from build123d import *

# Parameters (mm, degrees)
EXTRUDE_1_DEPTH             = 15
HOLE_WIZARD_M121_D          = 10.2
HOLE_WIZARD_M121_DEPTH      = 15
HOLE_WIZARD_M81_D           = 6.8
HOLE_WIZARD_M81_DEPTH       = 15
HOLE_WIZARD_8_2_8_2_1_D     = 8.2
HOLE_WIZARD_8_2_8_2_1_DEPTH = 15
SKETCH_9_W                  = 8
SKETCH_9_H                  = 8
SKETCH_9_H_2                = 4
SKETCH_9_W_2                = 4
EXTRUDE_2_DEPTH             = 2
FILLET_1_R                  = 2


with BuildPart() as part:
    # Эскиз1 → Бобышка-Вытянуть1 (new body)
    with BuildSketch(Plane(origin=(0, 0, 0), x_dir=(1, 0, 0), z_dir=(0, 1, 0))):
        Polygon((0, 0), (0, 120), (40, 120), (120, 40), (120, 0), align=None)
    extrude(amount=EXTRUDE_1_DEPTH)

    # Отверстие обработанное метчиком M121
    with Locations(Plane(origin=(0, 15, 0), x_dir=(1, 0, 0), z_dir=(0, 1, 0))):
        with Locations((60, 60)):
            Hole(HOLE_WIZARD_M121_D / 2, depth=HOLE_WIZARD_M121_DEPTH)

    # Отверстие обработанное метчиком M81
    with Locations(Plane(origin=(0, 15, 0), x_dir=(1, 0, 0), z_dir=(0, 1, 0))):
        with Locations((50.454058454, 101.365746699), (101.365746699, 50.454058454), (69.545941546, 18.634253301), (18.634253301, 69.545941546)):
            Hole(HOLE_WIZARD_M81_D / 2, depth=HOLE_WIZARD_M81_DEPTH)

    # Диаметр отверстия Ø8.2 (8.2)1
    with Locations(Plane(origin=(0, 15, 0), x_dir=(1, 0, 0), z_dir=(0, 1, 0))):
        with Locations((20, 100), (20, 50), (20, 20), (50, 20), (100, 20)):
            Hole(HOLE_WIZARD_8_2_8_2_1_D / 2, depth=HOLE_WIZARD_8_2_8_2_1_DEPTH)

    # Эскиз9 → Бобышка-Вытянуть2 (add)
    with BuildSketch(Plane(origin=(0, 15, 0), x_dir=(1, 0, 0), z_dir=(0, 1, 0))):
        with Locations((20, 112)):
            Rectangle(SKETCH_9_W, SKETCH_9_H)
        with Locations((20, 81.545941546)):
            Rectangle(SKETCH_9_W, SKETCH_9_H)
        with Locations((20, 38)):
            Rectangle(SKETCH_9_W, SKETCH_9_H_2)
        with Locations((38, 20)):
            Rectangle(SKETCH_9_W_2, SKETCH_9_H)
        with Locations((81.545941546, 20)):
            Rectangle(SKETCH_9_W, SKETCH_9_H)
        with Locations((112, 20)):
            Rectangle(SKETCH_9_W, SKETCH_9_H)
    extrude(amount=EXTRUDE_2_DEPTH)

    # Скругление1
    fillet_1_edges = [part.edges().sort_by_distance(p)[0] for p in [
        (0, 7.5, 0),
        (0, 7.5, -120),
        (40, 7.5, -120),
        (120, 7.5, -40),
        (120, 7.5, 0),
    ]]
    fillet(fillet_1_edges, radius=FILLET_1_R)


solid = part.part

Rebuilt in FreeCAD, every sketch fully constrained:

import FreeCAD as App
import Part
import Sketcher
from FreeCAD import Vector


def edges_at(feature, points):
    """Names of the edges that pass closest to the given points."""
    edges = feature.Shape.Edges
    near = lambda p: min(range(len(edges)), key=lambda i: edges[i].distToShape(Part.Vertex(*p))[0])
    return sorted({f"Edge{near(p) + 1}" for p in points})

doc = App.newDocument("Part")
body = doc.addObject("PartDesign::Body", "Body")

sketch1 = doc.addObject("Sketcher::SketchObject", "Sketch")
body.addObject(sketch1)
sketch1.AttachmentSupport = (doc.XZ_Plane, [""])
sketch1.MapMode = "FlatFace"
sketch1.addGeometry(Part.LineSegment(Vector(0, -120, 0), Vector(0, 0, 0)), False)
sketch1.addGeometry(Part.LineSegment(Vector(0, 0, 0), Vector(120, 0, 0)), False)
sketch1.addGeometry(Part.LineSegment(Vector(120, 0, 0), Vector(120, -40, 0)), False)
sketch1.addGeometry(Part.LineSegment(Vector(120, -40, 0), Vector(40, -120, 0)), False)
sketch1.addGeometry(Part.LineSegment(Vector(40, -120, 0), Vector(0, -120, 0)), False)
sketch1.addConstraint(Sketcher.Constraint("Coincident", 0, 2, 1, 1))
sketch1.addConstraint(Sketcher.Constraint("Coincident", 1, 2, 2, 1))
sketch1.addConstraint(Sketcher.Constraint("Coincident", 2, 2, 3, 1))
sketch1.addConstraint(Sketcher.Constraint("Coincident", 3, 2, 4, 1))
sketch1.addConstraint(Sketcher.Constraint("Coincident", 4, 2, 0, 1))
sketch1.addConstraint(Sketcher.Constraint("Vertical", 0))
sketch1.addConstraint(Sketcher.Constraint("Horizontal", 1))
sketch1.addConstraint(Sketcher.Constraint("Vertical", 2))
sketch1.addConstraint(Sketcher.Constraint("Horizontal", 4))
sketch1.addConstraint(Sketcher.Constraint("Coincident", 0, 2, -1, 1))
sketch1.addConstraint(Sketcher.Constraint("Equal", 1, 0))
sketch1.addConstraint(Sketcher.Constraint("Equal", 4, 2))
sketch1.addConstraint(Sketcher.Constraint("DistanceX", 1, 1, 1, 2, 120.0))
sketch1.addConstraint(Sketcher.Constraint("DistanceX", 4, 2, 4, 1, 40.0))
pad1 = doc.addObject("PartDesign::Pad", "Pad")
body.addObject(pad1)
pad1.Profile = sketch1
pad1.Length = 15
pad1.Reversed = True

sketch2 = doc.addObject("Sketcher::SketchObject", "Sketch001")
body.addObject(sketch2)
sketch2.AttachmentSupport = (doc.XZ_Plane, [""])
sketch2.MapMode = "FlatFace"
sketch2.AttachmentOffset = App.Placement(Vector(0, 0, -15), App.Rotation())
sketch2.addGeometry(Part.Circle(Vector(60, -60, 0), Vector(0, 0, 1), 5), False)
sketch2.addConstraint(Sketcher.Constraint("Diameter", 0, 10.2))
sketch2.addConstraint(Sketcher.Constraint("DistanceX", -1, 1, 0, 3, 60.0))
sketch2.addConstraint(Sketcher.Constraint("DistanceY", 0, 3, -1, 1, 60.0))
doc.recompute()
hole = doc.addObject("PartDesign::Hole", "Hole")
body.addObject(hole)
hole.Profile = sketch2
hole.ThreadType = "None"
hole.Diameter = 10.2
hole.DepthType = "Dimension"
hole.Depth = 15
hole.DrillPoint = "Flat"
hole.Reversed = True

sketch3 = doc.addObject("Sketcher::SketchObject", "Sketch002")
body.addObject(sketch3)
sketch3.AttachmentSupport = (doc.XZ_Plane, [""])
sketch3.MapMode = "FlatFace"
sketch3.AttachmentOffset = App.Placement(Vector(0, 0, -15), App.Rotation())
sketch3.addGeometry(Part.Circle(Vector(50.5, -101.4, 0), Vector(0, 0, 1), 3.4), False)
sketch3.addGeometry(Part.Circle(Vector(101.4, -50.5, 0), Vector(0, 0, 1), 3.4), False)
sketch3.addGeometry(Part.Circle(Vector(69.5, -18.6, 0), Vector(0, 0, 1), 3.4), False)
sketch3.addGeometry(Part.Circle(Vector(18.6, -69.5, 0), Vector(0, 0, 1), 3.4), False)
sketch3.addConstraint(Sketcher.Constraint("Equal", 0, 1))
sketch3.addConstraint(Sketcher.Constraint("Equal", 1, 2))
sketch3.addConstraint(Sketcher.Constraint("Equal", 2, 3))
sketch3.addConstraint(Sketcher.Constraint("Diameter", 0, 6.8))
sketch3.addConstraint(Sketcher.Constraint("DistanceX", -1, 1, 0, 3, 50.454058))
sketch3.addConstraint(Sketcher.Constraint("DistanceY", 1, 3, -1, 1, 50.454058))
sketch3.addConstraint(Sketcher.Constraint("DistanceX", -1, 1, 2, 3, 69.545942))
sketch3.addConstraint(Sketcher.Constraint("DistanceY", 3, 3, -1, 1, 69.545942))
sketch3.addConstraint(Sketcher.Constraint("DistanceX", 0, 3, 1, 3, 50.911688))
sketch3.addConstraint(Sketcher.Constraint("DistanceY", 0, 3, 1, 3, 50.911688))
sketch3.addConstraint(Sketcher.Constraint("DistanceX", 3, 3, 2, 3, 50.911688))
sketch3.addConstraint(Sketcher.Constraint("DistanceY", 3, 3, 2, 3, 50.911688))
doc.recompute()
hole2 = doc.addObject("PartDesign::Hole", "Hole001")
body.addObject(hole2)
hole2.Profile = sketch3
hole2.ThreadType = "None"
hole2.Diameter = 6.8
hole2.DepthType = "Dimension"
hole2.Depth = 15
hole2.DrillPoint = "Flat"
hole2.Reversed = True

sketch4 = doc.addObject("Sketcher::SketchObject", "Sketch003")
body.addObject(sketch4)
sketch4.AttachmentSupport = (doc.XZ_Plane, [""])
sketch4.MapMode = "FlatFace"
sketch4.AttachmentOffset = App.Placement(Vector(0, 0, -15), App.Rotation())
sketch4.addGeometry(Part.Circle(Vector(20, -100, 0), Vector(0, 0, 1), 4.1), False)
sketch4.addGeometry(Part.Circle(Vector(20, -50, 0), Vector(0, 0, 1), 4.1), False)
sketch4.addGeometry(Part.Circle(Vector(20, -20, 0), Vector(0, 0, 1), 4.1), False)
sketch4.addGeometry(Part.Circle(Vector(50, -20, 0), Vector(0, 0, 1), 4.1), False)
sketch4.addGeometry(Part.Circle(Vector(100, -20, 0), Vector(0, 0, 1), 4.1), False)
sketch4.addConstraint(Sketcher.Constraint("Equal", 0, 1))
sketch4.addConstraint(Sketcher.Constraint("Equal", 1, 2))
sketch4.addConstraint(Sketcher.Constraint("Equal", 2, 3))
sketch4.addConstraint(Sketcher.Constraint("Equal", 3, 4))
sketch4.addConstraint(Sketcher.Constraint("Horizontal", 2, 3, 3, 3))
sketch4.addConstraint(Sketcher.Constraint("Horizontal", 3, 3, 4, 3))
sketch4.addConstraint(Sketcher.Constraint("Vertical", 0, 3, 1, 3))
sketch4.addConstraint(Sketcher.Constraint("Vertical", 1, 3, 2, 3))
sketch4.addConstraint(Sketcher.Constraint("Diameter", 0, 8.2))
sketch4.addConstraint(Sketcher.Constraint("DistanceX", -1, 1, 0, 3, 20.0))
sketch4.addConstraint(Sketcher.Constraint("DistanceY", 0, 3, -1, 1, 100.0))
sketch4.addConstraint(Sketcher.Constraint("DistanceY", 1, 3, -1, 1, 50.0))
sketch4.addConstraint(Sketcher.Constraint("DistanceY", 2, 3, -1, 1, 20.0))
sketch4.addConstraint(Sketcher.Constraint("DistanceX", -1, 1, 3, 3, 50.0))
sketch4.addConstraint(Sketcher.Constraint("DistanceX", -1, 1, 4, 3, 100.0))
doc.recompute()
hole3 = doc.addObject("PartDesign::Hole", "Hole002")
body.addObject(hole3)
hole3.Profile = sketch4
hole3.ThreadType = "None"
hole3.Diameter = 8.2
hole3.DepthType = "Dimension"
hole3.Depth = 15
hole3.DrillPoint = "Flat"
hole3.Reversed = True

sketch5 = doc.addObject("Sketcher::SketchObject", "Sketch004")
body.addObject(sketch5)
sketch5.AttachmentSupport = (doc.XZ_Plane, [""])
sketch5.MapMode = "FlatFace"
sketch5.AttachmentOffset = App.Placement(Vector(0, 0, -15), App.Rotation())
sketch5.addGeometry(Part.LineSegment(Vector(16, -116, 0), Vector(16, -108, 0)), False)
sketch5.addGeometry(Part.LineSegment(Vector(16, -108, 0), Vector(24, -108, 0)), False)
sketch5.addGeometry(Part.LineSegment(Vector(24, -108, 0), Vector(24, -116, 0)), False)
sketch5.addGeometry(Part.LineSegment(Vector(24, -116, 0), Vector(16, -116, 0)), False)
sketch5.addGeometry(Part.LineSegment(Vector(16, -85.5, 0), Vector(16, -77.5, 0)), False)
sketch5.addGeometry(Part.LineSegment(Vector(16, -77.5, 0), Vector(24, -77.5, 0)), False)
sketch5.addGeometry(Part.LineSegment(Vector(24, -77.5, 0), Vector(24, -85.5, 0)), False)
sketch5.addGeometry(Part.LineSegment(Vector(24, -85.5, 0), Vector(16, -85.5, 0)), False)
sketch5.addGeometry(Part.LineSegment(Vector(16, -40, 0), Vector(16, -36, 0)), False)
sketch5.addGeometry(Part.LineSegment(Vector(16, -36, 0), Vector(24, -36, 0)), False)
sketch5.addGeometry(Part.LineSegment(Vector(24, -36, 0), Vector(24, -40, 0)), False)
sketch5.addGeometry(Part.LineSegment(Vector(24, -40, 0), Vector(16, -40, 0)), False)
sketch5.addGeometry(Part.LineSegment(Vector(36, -24, 0), Vector(36, -16, 0)), False)
sketch5.addGeometry(Part.LineSegment(Vector(36, -16, 0), Vector(40, -16, 0)), False)
sketch5.addGeometry(Part.LineSegment(Vector(40, -16, 0), Vector(40, -24, 0)), False)
sketch5.addGeometry(Part.LineSegment(Vector(40, -24, 0), Vector(36, -24, 0)), False)
sketch5.addGeometry(Part.LineSegment(Vector(77.5, -24, 0), Vector(77.5, -16, 0)), False)
sketch5.addGeometry(Part.LineSegment(Vector(77.5, -16, 0), Vector(85.5, -16, 0)), False)
sketch5.addGeometry(Part.LineSegment(Vector(85.5, -16, 0), Vector(85.5, -24, 0)), False)
sketch5.addGeometry(Part.LineSegment(Vector(85.5, -24, 0), Vector(77.5, -24, 0)), False)
sketch5.addGeometry(Part.LineSegment(Vector(108, -24, 0), Vector(108, -16, 0)), False)
sketch5.addGeometry(Part.LineSegment(Vector(108, -16, 0), Vector(116, -16, 0)), False)
sketch5.addGeometry(Part.LineSegment(Vector(116, -16, 0), Vector(116, -24, 0)), False)
sketch5.addGeometry(Part.LineSegment(Vector(116, -24, 0), Vector(108, -24, 0)), False)
sketch5.addConstraint(Sketcher.Constraint("Coincident", 0, 2, 1, 1))
sketch5.addConstraint(Sketcher.Constraint("Coincident", 1, 2, 2, 1))
sketch5.addConstraint(Sketcher.Constraint("Coincident", 2, 2, 3, 1))
sketch5.addConstraint(Sketcher.Constraint("Coincident", 3, 2, 0, 1))
sketch5.addConstraint(Sketcher.Constraint("Coincident", 4, 2, 5, 1))
sketch5.addConstraint(Sketcher.Constraint("Coincident", 5, 2, 6, 1))
sketch5.addConstraint(Sketcher.Constraint("Coincident", 6, 2, 7, 1))
sketch5.addConstraint(Sketcher.Constraint("Coincident", 7, 2, 4, 1))
sketch5.addConstraint(Sketcher.Constraint("Coincident", 8, 2, 9, 1))
sketch5.addConstraint(Sketcher.Constraint("Coincident", 9, 2, 10, 1))
sketch5.addConstraint(Sketcher.Constraint("Coincident", 10, 2, 11, 1))
sketch5.addConstraint(Sketcher.Constraint("Coincident", 11, 2, 8, 1))
sketch5.addConstraint(Sketcher.Constraint("Coincident", 12, 2, 13, 1))
sketch5.addConstraint(Sketcher.Constraint("Coincident", 13, 2, 14, 1))
sketch5.addConstraint(Sketcher.Constraint("Coincident", 14, 2, 15, 1))
sketch5.addConstraint(Sketcher.Constraint("Coincident", 15, 2, 12, 1))
sketch5.addConstraint(Sketcher.Constraint("Coincident", 16, 2, 17, 1))
sketch5.addConstraint(Sketcher.Constraint("Coincident", 17, 2, 18, 1))
sketch5.addConstraint(Sketcher.Constraint("Coincident", 18, 2, 19, 1))
sketch5.addConstraint(Sketcher.Constraint("Coincident", 19, 2, 16, 1))
sketch5.addConstraint(Sketcher.Constraint("Coincident", 20, 2, 21, 1))
sketch5.addConstraint(Sketcher.Constraint("Coincident", 21, 2, 22, 1))
sketch5.addConstraint(Sketcher.Constraint("Coincident", 22, 2, 23, 1))
sketch5.addConstraint(Sketcher.Constraint("Coincident", 23, 2, 20, 1))
sketch5.addConstraint(Sketcher.Constraint("Vertical", 0))
sketch5.addConstraint(Sketcher.Constraint("Horizontal", 1))
sketch5.addConstraint(Sketcher.Constraint("Vertical", 2))
sketch5.addConstraint(Sketcher.Constraint("Horizontal", 3))
sketch5.addConstraint(Sketcher.Constraint("Vertical", 4))
sketch5.addConstraint(Sketcher.Constraint("Horizontal", 5))
sketch5.addConstraint(Sketcher.Constraint("Vertical", 6))
sketch5.addConstraint(Sketcher.Constraint("Horizontal", 7))
sketch5.addConstraint(Sketcher.Constraint("Vertical", 8))
sketch5.addConstraint(Sketcher.Constraint("Horizontal", 9))
sketch5.addConstraint(Sketcher.Constraint("Vertical", 10))
sketch5.addConstraint(Sketcher.Constraint("Horizontal", 11))
sketch5.addConstraint(Sketcher.Constraint("Vertical", 12))
sketch5.addConstraint(Sketcher.Constraint("Horizontal", 13))
sketch5.addConstraint(Sketcher.Constraint("Vertical", 14))
sketch5.addConstraint(Sketcher.Constraint("Horizontal", 15))
sketch5.addConstraint(Sketcher.Constraint("Vertical", 16))
sketch5.addConstraint(Sketcher.Constraint("Horizontal", 17))
sketch5.addConstraint(Sketcher.Constraint("Vertical", 18))
sketch5.addConstraint(Sketcher.Constraint("Horizontal", 19))
sketch5.addConstraint(Sketcher.Constraint("Vertical", 20))
sketch5.addConstraint(Sketcher.Constraint("Horizontal", 21))
sketch5.addConstraint(Sketcher.Constraint("Vertical", 22))
sketch5.addConstraint(Sketcher.Constraint("Horizontal", 23))
sketch5.addConstraint(Sketcher.Constraint("Horizontal", 13, 2, 16, 2))
sketch5.addConstraint(Sketcher.Constraint("Horizontal", 15, 2, 18, 2))
sketch5.addConstraint(Sketcher.Constraint("Horizontal", 17, 2, 20, 2))
sketch5.addConstraint(Sketcher.Constraint("Horizontal", 19, 2, 22, 2))
sketch5.addConstraint(Sketcher.Constraint("Vertical", 3, 2, 4, 2))
sketch5.addConstraint(Sketcher.Constraint("Vertical", 2, 2, 5, 2))
sketch5.addConstraint(Sketcher.Constraint("Vertical", 7, 2, 8, 2))
sketch5.addConstraint(Sketcher.Constraint("Vertical", 6, 2, 9, 2))
sketch5.addConstraint(Sketcher.Constraint("Equal", 11, 17))
sketch5.addConstraint(Sketcher.Constraint("Equal", 19, 21))
sketch5.addConstraint(Sketcher.Constraint("Equal", 23, 0))
sketch5.addConstraint(Sketcher.Constraint("Equal", 2, 4))
sketch5.addConstraint(Sketcher.Constraint("Equal", 15, 8))
sketch5.addConstraint(Sketcher.Constraint("Equal", 6, 12))
sketch5.addConstraint(Sketcher.Constraint("DistanceX", 1, 1, 1, 2, 8.0))
sketch5.addConstraint(Sketcher.Constraint("DistanceX", 13, 1, 13, 2, 4.0))
sketch5.addConstraint(Sketcher.Constraint("DistanceX", -1, 1, 0, 2, 16.0))
sketch5.addConstraint(Sketcher.Constraint("DistanceY", 0, 2, -1, 1, 108.0))
sketch5.addConstraint(Sketcher.Constraint("DistanceY", 8, 2, -1, 1, 36.0))
sketch5.addConstraint(Sketcher.Constraint("DistanceX", -1, 1, 12, 2, 36.0))
sketch5.addConstraint(Sketcher.Constraint("DistanceY", 12, 2, -1, 1, 16.0))
sketch5.addConstraint(Sketcher.Constraint("DistanceX", -1, 1, 20, 2, 108.0))
sketch5.addConstraint(Sketcher.Constraint("DistanceY", 4, 2, -1, 1, 77.545942))
sketch5.addConstraint(Sketcher.Constraint("DistanceX", -1, 1, 16, 2, 77.545942))
pad2 = doc.addObject("PartDesign::Pad", "Pad001")
body.addObject(pad2)
pad2.Profile = sketch5
pad2.Length = 2
pad2.Reversed = True
doc.recompute()

fillet = doc.addObject("PartDesign::Fillet", "Fillet")
body.addObject(fillet)
fillet.Base = (pad2, edges_at(pad2, [
    (0, 7.5, 0),
    (0, 7.5, -120),
    (40, 7.5, -120),
    (120, 7.5, -40),
    (120, 7.5, 0),
]))
fillet.Radius = 2

doc.recompute()
